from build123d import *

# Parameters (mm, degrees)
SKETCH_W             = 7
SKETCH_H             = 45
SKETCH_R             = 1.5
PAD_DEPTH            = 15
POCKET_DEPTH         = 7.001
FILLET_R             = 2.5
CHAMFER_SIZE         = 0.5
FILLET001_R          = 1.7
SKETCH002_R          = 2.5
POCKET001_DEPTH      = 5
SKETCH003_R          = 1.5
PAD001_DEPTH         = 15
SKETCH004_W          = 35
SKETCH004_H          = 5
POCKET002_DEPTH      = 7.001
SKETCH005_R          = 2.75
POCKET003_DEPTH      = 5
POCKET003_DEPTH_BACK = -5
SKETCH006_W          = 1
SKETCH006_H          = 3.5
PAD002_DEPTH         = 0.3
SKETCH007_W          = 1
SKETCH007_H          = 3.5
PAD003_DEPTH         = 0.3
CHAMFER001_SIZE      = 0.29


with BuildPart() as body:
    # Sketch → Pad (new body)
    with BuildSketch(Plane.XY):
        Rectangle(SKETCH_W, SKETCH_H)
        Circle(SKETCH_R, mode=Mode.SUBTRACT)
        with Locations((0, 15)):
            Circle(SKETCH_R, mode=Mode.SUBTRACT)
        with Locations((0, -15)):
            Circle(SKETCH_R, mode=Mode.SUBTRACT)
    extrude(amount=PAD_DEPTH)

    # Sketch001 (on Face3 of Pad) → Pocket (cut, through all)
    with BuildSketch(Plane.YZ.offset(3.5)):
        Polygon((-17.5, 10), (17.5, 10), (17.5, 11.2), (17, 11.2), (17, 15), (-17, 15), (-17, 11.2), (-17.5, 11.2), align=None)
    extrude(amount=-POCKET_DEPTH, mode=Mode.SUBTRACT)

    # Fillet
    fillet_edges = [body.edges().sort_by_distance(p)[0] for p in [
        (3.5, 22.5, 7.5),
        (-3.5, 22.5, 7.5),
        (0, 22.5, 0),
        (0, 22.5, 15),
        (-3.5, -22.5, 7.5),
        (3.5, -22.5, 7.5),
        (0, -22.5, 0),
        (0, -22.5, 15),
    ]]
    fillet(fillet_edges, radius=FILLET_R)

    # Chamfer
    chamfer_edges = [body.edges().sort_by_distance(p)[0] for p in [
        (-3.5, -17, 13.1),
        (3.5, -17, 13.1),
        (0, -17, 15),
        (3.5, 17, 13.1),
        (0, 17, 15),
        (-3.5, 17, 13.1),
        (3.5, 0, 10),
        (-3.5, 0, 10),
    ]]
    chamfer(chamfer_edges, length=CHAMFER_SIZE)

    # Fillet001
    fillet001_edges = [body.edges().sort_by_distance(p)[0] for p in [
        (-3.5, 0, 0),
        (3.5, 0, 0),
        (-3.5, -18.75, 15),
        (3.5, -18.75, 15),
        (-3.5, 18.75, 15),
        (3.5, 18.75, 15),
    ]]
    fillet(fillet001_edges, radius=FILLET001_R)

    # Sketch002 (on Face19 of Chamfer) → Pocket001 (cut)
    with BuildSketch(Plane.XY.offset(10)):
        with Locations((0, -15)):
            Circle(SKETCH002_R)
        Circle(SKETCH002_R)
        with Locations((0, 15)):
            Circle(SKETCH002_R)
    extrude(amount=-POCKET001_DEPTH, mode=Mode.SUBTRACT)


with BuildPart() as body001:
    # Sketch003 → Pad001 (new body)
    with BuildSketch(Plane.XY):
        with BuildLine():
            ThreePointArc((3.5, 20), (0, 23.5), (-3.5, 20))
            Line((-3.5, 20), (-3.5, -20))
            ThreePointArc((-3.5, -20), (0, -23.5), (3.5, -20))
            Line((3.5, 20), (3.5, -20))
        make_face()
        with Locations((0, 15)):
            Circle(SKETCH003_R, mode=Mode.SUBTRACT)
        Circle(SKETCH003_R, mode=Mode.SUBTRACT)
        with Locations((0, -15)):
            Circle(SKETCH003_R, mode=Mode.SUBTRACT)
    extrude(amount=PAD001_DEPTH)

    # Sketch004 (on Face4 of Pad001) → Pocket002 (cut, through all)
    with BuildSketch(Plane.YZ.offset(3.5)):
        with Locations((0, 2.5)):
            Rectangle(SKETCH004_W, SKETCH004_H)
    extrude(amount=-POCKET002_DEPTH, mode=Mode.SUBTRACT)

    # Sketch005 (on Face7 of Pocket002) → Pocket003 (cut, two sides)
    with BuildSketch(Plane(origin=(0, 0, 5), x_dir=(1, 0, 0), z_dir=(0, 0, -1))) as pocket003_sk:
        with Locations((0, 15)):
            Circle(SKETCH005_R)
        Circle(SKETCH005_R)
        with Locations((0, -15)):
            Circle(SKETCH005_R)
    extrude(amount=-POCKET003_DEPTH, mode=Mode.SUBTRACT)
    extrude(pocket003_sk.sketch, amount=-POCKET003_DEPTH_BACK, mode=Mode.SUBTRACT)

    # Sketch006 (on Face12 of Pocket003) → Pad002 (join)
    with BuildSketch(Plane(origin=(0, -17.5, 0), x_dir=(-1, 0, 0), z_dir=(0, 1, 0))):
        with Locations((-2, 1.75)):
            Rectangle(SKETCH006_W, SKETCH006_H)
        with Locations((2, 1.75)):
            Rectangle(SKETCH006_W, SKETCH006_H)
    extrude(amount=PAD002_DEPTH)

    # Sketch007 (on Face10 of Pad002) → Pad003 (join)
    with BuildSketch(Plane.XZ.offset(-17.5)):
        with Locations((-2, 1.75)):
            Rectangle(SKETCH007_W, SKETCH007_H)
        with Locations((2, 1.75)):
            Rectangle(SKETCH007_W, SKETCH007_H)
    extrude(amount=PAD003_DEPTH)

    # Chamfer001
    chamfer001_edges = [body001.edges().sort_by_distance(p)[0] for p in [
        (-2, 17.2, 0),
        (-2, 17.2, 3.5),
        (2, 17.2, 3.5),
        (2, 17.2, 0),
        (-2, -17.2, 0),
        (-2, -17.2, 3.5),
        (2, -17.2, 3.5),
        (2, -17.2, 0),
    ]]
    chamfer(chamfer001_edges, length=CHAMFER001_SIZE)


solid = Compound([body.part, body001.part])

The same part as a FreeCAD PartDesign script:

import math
import FreeCAD as App
import Part
import Sketcher
from FreeCAD import Vector
Q = App.Units.Quantity


def edges_at(feature, points):
    """Names of the edges that pass closest to the given points."""
    edges = feature.Shape.Edges
    near = lambda p: min(range(len(edges)), key=lambda i: edges[i].distToShape(Part.Vertex(*p))[0])
    return sorted({f"Edge{near(p) + 1}" for p in points})


def add_polygon(sketch, points):
    """Adds a closed chain of lines whose ends are joined by coincident constraints."""
    first, n = sketch.GeometryCount, len(points)
    for a, b in zip(points, points[1:] + points[:1]):
        sketch.addGeometry(Part.LineSegment(App.Vector(*a, 0), App.Vector(*b, 0)), False)
    for i in range(n):
        sketch.addConstraint(Sketcher.Constraint("Coincident", first + i, 2, first + (i + 1) % n, 1))

doc = App.newDocument("Part")
body = doc.addObject("PartDesign::Body", "Body")

sketch1 = body.newObject("Sketcher::SketchObject", "Sketch")
sketch1.AttachmentSupport = (doc.getObject("XY_Plane"), [""])
sketch1.MapMode = "FlatFace"
add_polygon(sketch1, [(-3.5, 22.5), (-3.5, -22.5), (3.5, -22.5), (3.5, 22.5)])
sketch1.addGeometry(Part.Circle(Vector(0, -15, 0), Vector(0, 0, 1), 1.5), False)
sketch1.addGeometry(Part.Circle(Vector(0, 0, 0), Vector(0, 0, 1), 1.5), False)
sketch1.addGeometry(Part.Circle(Vector(0, 15, 0), Vector(0, 0, 1), 1.5), False)
sketch1.addConstraint(Sketcher.Constraint("Vertical", 0))
sketch1.addConstraint(Sketcher.Constraint("Horizontal", 1))
sketch1.addConstraint(Sketcher.Constraint("Vertical", 2))
sketch1.addConstraint(Sketcher.Constraint("Horizontal", 3))
sketch1.addConstraint(Sketcher.Constraint("Coincident", 5, 3, -1, 1))
sketch1.addConstraint(Sketcher.Constraint("Equal", 4, 5))
sketch1.addConstraint(Sketcher.Constraint("Equal", 5, 6))
sketch1.addConstraint(Sketcher.Constraint("Symmetric", 4, 3, 6, 3, -1, 1))
sketch1.addConstraint(Sketcher.Constraint("Symmetric", 0, 2, 2, 2, -1, 1))
sketch1.addConstraint(Sketcher.Constraint("PointOnObject", 4, 3, -2))
sketch1.addConstraint(Sketcher.Constraint("Diameter", 4, Q("3 mm")))
sketch1.addConstraint(Sketcher.Constraint("DistanceX", 1, 1, 1, 2, Q("7 mm")))
sketch1.addConstraint(Sketcher.Constraint("DistanceY", 0, 2, 0, 1, Q("45 mm")))
sketch1.addConstraint(Sketcher.Constraint("DistanceY", 4, 3, -1, 1, Q("15 mm")))
pad1 = body.newObject("PartDesign::Pad", "Pad")
pad1.Profile = sketch1
pad1.Length = 15

sketch2 = body.newObject("Sketcher::SketchObject", "Sketch001")
sketch2.AttachmentSupport = (doc.getObject("YZ_Plane"), [""])
sketch2.MapMode = "FlatFace"
sketch2.AttachmentOffset = App.Placement(Vector(0, 0, 3.5), App.Rotation())
add_polygon(sketch2, [(-17.5, 10), (17.5, 10), (17.5, 11.2), (17, 11.2), (17, 15), (-17, 15), (-17, 11.2), (-17.5, 11.2)])
sketch2.addConstraint(Sketcher.Constraint("Horizontal", 0))
sketch2.addConstraint(Sketcher.Constraint("Vertical", 1))
sketch2.addConstraint(Sketcher.Constraint("Horizontal", 2))
sketch2.addConstraint(Sketcher.Constraint("Vertical", 3))
sketch2.addConstraint(Sketcher.Constraint("Horizontal", 4))
sketch2.addConstraint(Sketcher.Constraint("Vertical", 5))
sketch2.addConstraint(Sketcher.Constraint("Horizontal", 6))
sketch2.addConstraint(Sketcher.Constraint("Vertical", 7))
sketch2.addConstraint(Sketcher.Constraint("Symmetric", 2, 2, 5, 2, -2))
sketch2.addConstraint(Sketcher.Constraint("Equal", 2, 6))
sketch2.addConstraint(Sketcher.Constraint("DistanceX", 0, 1, 0, 2, Q("35 mm")))
sketch2.addConstraint(Sketcher.Constraint("DistanceX", 4, 2, 4, 1, Q("34 mm")))
sketch2.addConstraint(Sketcher.Constraint("DistanceY", 1, 1, 1, 2, Q("1.2 mm")))
sketch2.addConstraint(Sketcher.Constraint("DistanceY", 3, 1, 3, 2, Q("3.8 mm")))
sketch2.addConstraint(Sketcher.Constraint("DistanceY", -1, 1, 0, 2, Q("10 mm")))
pocket1 = body.newObject("PartDesign::Pocket", "Pocket")
pocket1.Profile = sketch2
pocket1.Type = "ThroughAll"
doc.recompute()

fillet = body.newObject("PartDesign::Fillet", "Fillet")
fillet.Base = (pocket1, edges_at(pocket1, [
    (3.5, 22.5, 7.5),
    (-3.5, 22.5, 7.5),
    (0, 22.5, 0),
    (0, 22.5, 15),
    (-3.5, -22.5, 7.5),
    (3.5, -22.5, 7.5),
    (0, -22.5, 0),
    (0, -22.5, 15),
]))
fillet.Radius = 2.5
doc.recompute()

chamfer = body.newObject("PartDesign::Chamfer", "Chamfer")
chamfer.Base = (fillet, edges_at(fillet, [
    (-3.5, -17, 13.1),
    (3.5, -17, 13.1),
    (0, -17, 15),
    (3.5, 17, 13.1),
    (0, 17, 15),
    (-3.5, 17, 13.1),
    (3.5, 0, 10),
    (-3.5, 0, 10),
]))
chamfer.Size = 0.5
doc.recompute()

fillet2 = body.newObject("PartDesign::Fillet", "Fillet001")
fillet2.Base = (chamfer, edges_at(chamfer, [
    (-3.5, 0, 0),
    (3.5, 0, 0),
    (-3.5, -18.75, 15),
    (3.5, -18.75, 15),
    (-3.5, 18.75, 15),
    (3.5, 18.75, 15),
]))
fillet2.Radius = 1.7

sketch3 = body.newObject("Sketcher::SketchObject", "Sketch002")
sketch3.AttachmentSupport = (doc.getObject("XY_Plane"), [""])
sketch3.MapMode = "FlatFace"
sketch3.AttachmentOffset = App.Placement(Vector(0, 0, 10), App.Rotation())
sketch3.addGeometry(Part.Circle(Vector(0, -15, 0), Vector(0, 0, 1), 2.5), False)
sketch3.addGeometry(Part.Circle(Vector(0, 0, 0), Vector(0, 0, 1), 2.5), False)
sketch3.addGeometry(Part.Circle(Vector(0, 15, 0), Vector(0, 0, 1), 2.5), False)
sketch3.addConstraint(Sketcher.Constraint("Coincident", 1, 3, -1, 1))
sketch3.addConstraint(Sketcher.Constraint("Equal", 0, 1))
sketch3.addConstraint(Sketcher.Constraint("Equal", 1, 2))
sketch3.addConstraint(Sketcher.Constraint("Symmetric", 0, 3, 2, 3, -1, 1))
sketch3.addConstraint(Sketcher.Constraint("PointOnObject", 0, 3, -2))
sketch3.addConstraint(Sketcher.Constraint("Diameter", 0, Q("5 mm")))
sketch3.addConstraint(Sketcher.Constraint("DistanceY", 0, 3, -1, 1, Q("15 mm")))
pocket2 = body.newObject("PartDesign::Pocket", "Pocket001")
pocket2.Profile = sketch3
pocket2.Length = 5
body2 = doc.addObject("PartDesign::Body", "Body001")

sketch4 = body2.newObject("Sketcher::SketchObject", "Sketch003")
sketch4.AttachmentSupport = (doc.getObject("XY_Plane001"), [""])
sketch4.MapMode = "FlatFace"
sketch4.addGeometry(Part.ArcOfCircle(Part.Circle(Vector(0, 20, 0), Vector(0, 0, 1), 3.5), math.radians(0), math.radians(180)), False)
sketch4.addGeometry(Part.LineSegment(Vector(-3.5, 20, 0), Vector(-3.5, -20, 0)), False)
sketch4.addGeometry(Part.ArcOfCircle(Part.Circle(Vector(0, -20, 0), Vector(0, 0, 1), 3.5), math.radians(180), math.radians(360)), False)
sketch4.addGeometry(Part.LineSegment(Vector(3.5, -20, 0), Vector(3.5, 20, 0)), False)
sketch4.addGeometry(Part.Circle(Vector(0, -15, 0), Vector(0, 0, 1), 1.5), False)
sketch4.addGeometry(Part.Circle(Vector(0, 0, 0), Vector(0, 0, 1), 1.5), False)
sketch4.addGeometry(Part.Circle(Vector(0, 15, 0), Vector(0, 0, 1), 1.5), False)
sketch4.addConstraint(Sketcher.Constraint("Tangent", 0, 2, 1, 1))
sketch4.addConstraint(Sketcher.Constraint("Tangent", 1, 2, 2, 1))
sketch4.addConstraint(Sketcher.Constraint("Tangent", 2, 2, 3, 1))
sketch4.addConstraint(Sketcher.Constraint("Tangent", 3, 2, 0, 1))
sketch4.addConstraint(Sketcher.Constraint("Vertical", 1))
sketch4.addConstraint(Sketcher.Constraint("Vertical", 3))
sketch4.addConstraint(Sketcher.Constraint("Coincident", 5, 3, -1, 1))
sketch4.addConstraint(Sketcher.Constraint("Equal", 4, 5))
sketch4.addConstraint(Sketcher.Constraint("Equal", 5, 6))
sketch4.addConstraint(Sketcher.Constraint("Symmetric", 0, 3, 2, 3, -1, 1))
sketch4.addConstraint(Sketcher.Constraint("Symmetric", 4, 3, 6, 3, -1, 1))
sketch4.addConstraint(Sketcher.Constraint("PointOnObject", 4, 3, -2))
sketch4.addConstraint(Sketcher.Constraint("Diameter", 4, Q("3 mm")))
sketch4.addConstraint(Sketcher.Constraint("Radius", 0, Q("3.5 mm")))
sketch4.addConstraint(Sketcher.Constraint("DistanceY", 1, 2, 1, 1, Q("40 mm")))
sketch4.addConstraint(Sketcher.Constraint("DistanceY", 4, 3, -1, 1, Q("15 mm")))
pad2 = body2.newObject("PartDesign::Pad", "Pad001")
pad2.Profile = sketch4
pad2.Length = 15

sketch5 = body2.newObject("Sketcher::SketchObject", "Sketch004")
sketch5.AttachmentSupport = (doc.getObject("YZ_Plane001"), [""])
sketch5.MapMode = "FlatFace"
sketch5.AttachmentOffset = App.Placement(Vector(0, 0, 3.5), App.Rotation())
add_polygon(sketch5, [(-17.5, 5), (-17.5, 0), (17.5, 0), (17.5, 5)])
sketch5.addConstraint(Sketcher.Constraint("Vertical", 0))
sketch5.addConstraint(Sketcher.Constraint("Horizontal", 1))
sketch5.addConstraint(Sketcher.Constraint("Vertical", 2))
sketch5.addConstraint(Sketcher.Constraint("Horizontal", 3))
sketch5.addConstraint(Sketcher.Constraint("Symmetric", 0, 2, 1, 2, -1, 1))
sketch5.addConstraint(Sketcher.Constraint("DistanceX", 1, 1, 1, 2, Q("35 mm")))
sketch5.addConstraint(Sketcher.Constraint("DistanceY", 0, 2, 0, 1, Q("5 mm")))
pocket3 = body2.newObject("PartDesign::Pocket", "Pocket002")
pocket3.Profile = sketch5
pocket3.Type = "ThroughAll"

sketch6 = body2.newObject("Sketcher::SketchObject", "Sketch005")
sketch6.AttachmentSupport = (doc.getObject("XY_Plane001"), [""])
sketch6.MapMode = "FlatFace"
sketch6.AttachmentOffset = App.Placement(Vector(0, 0, 5), App.Rotation())
sketch6.addGeometry(Part.Circle(Vector(0, -15, 0), Vector(0, 0, 1), 2.75), False)
sketch6.addGeometry(Part.Circle(Vector(0, 0, 0), Vector(0, 0, 1), 2.75), False)
sketch6.addGeometry(Part.Circle(Vector(0, 15, 0), Vector(0, 0, 1), 2.75), False)
sketch6.addConstraint(Sketcher.Constraint("Coincident", 1, 3, -1, 1))
sketch6.addConstraint(Sketcher.Constraint("Equal", 0, 1))
sketch6.addConstraint(Sketcher.Constraint("Equal", 1, 2))
sketch6.addConstraint(Sketcher.Constraint("Symmetric", 0, 3, 2, 3, -1, 1))
sketch6.addConstraint(Sketcher.Constraint("PointOnObject", 0, 3, -2))
sketch6.addConstraint(Sketcher.Constraint("Diameter", 0, Q("5.5 mm")))
sketch6.addConstraint(Sketcher.Constraint("DistanceY", 0, 3, -1, 1, Q("15 mm")))
pocket4 = body2.newObject("PartDesign::Pocket", "Pocket003")
pocket4.Profile = sketch6
pocket4.Type = "TwoLengths"
pocket4.Length = 5
pocket4.Length2 = 5
pocket4.Reversed = True

sketch7 = body2.newObject("Sketcher::SketchObject", "Sketch006")
sketch7.AttachmentSupport = (doc.getObject("XZ_Plane001"), [""])
sketch7.MapMode = "FlatFace"
sketch7.AttachmentOffset = App.Placement(Vector(0, 0, 17.5), App.Rotation())
add_polygon(sketch7, [(2.5, 3.5), (2.5, 0), (1.5, 0), (1.5, 3.5)])
add_polygon(sketch7, [(-1.5, 3.5), (-1.5, 0), (-2.5, 0), (-2.5, 3.5)])
sketch7.addConstraint(Sketcher.Constraint("Vertical", 0))
sketch7.addConstraint(Sketcher.Constraint("Horizontal", 1))
sketch7.addConstraint(Sketcher.Constraint("Vertical", 2))
sketch7.addConstraint(Sketcher.Constraint("Horizontal", 3))
sketch7.addConstraint(Sketcher.Constraint("Vertical", 4))
sketch7.addConstraint(Sketcher.Constraint("Horizontal", 5))
sketch7.addConstraint(Sketcher.Constraint("Vertical", 6))
sketch7.addConstraint(Sketcher.Constraint("Horizontal", 7))
sketch7.addConstraint(Sketcher.Constraint("Symmetric", 1, 2, 4, 2, -1, 1))
sketch7.addConstraint(Sketcher.Constraint("Symmetric", 0, 2, 5, 2, -2))
sketch7.addConstraint(Sketcher.Constraint("Horizontal", 3, 2, 6, 2))
sketch7.addConstraint(Sketcher.Constraint("DistanceX", 1, 2, 1, 1, Q("1 mm")))
sketch7.addConstraint(Sketcher.Constraint("DistanceY", 0, 2, 0, 1, Q("3.5 mm")))
sketch7.addConstraint(Sketcher.Constraint("DistanceX", 4, 2, 1, 2, Q("3 mm")))
pad3 = body2.newObject("PartDesign::Pad", "Pad002")
pad3.Profile = sketch7
pad3.Length = 0.3
pad3.Reversed = True

sketch8 = body2.newObject("Sketcher::SketchObject", "Sketch007")
sketch8.AttachmentSupport = (doc.getObject("XZ_Plane001"), [""])
sketch8.MapMode = "FlatFace"
sketch8.AttachmentOffset = App.Placement(Vector(0, 0, -17.5), App.Rotation())
add_polygon(sketch8, [(-2.5, 3.5), (-2.5, 0), (-1.5, 0), (-1.5, 3.5)])
add_polygon(sketch8, [(1.5, 3.5), (1.5, 0), (2.5, 0), (2.5, 3.5)])
sketch8.addConstraint(Sketcher.Constraint("Vertical", 0))
sketch8.addConstraint(Sketcher.Constraint("Horizontal", 1))
sketch8.addConstraint(Sketcher.Constraint("Vertical", 2))
sketch8.addConstraint(Sketcher.Constraint("Horizontal", 3))
sketch8.addConstraint(Sketcher.Constraint("Vertical", 4))
sketch8.addConstraint(Sketcher.Constraint("Horizontal", 5))
sketch8.addConstraint(Sketcher.Constraint("Vertical", 6))
sketch8.addConstraint(Sketcher.Constraint("Horizontal", 7))
sketch8.addConstraint(Sketcher.Constraint("Symmetric", 1, 2, 4, 2, -1, 1))
sketch8.addConstraint(Sketcher.Constraint("Symmetric", 0, 2, 5, 2, -2))
sketch8.addConstraint(Sketcher.Constraint("Horizontal", 3, 2, 6, 2))
sketch8.addConstraint(Sketcher.Constraint("DistanceX", 1, 1, 1, 2, Q("1 mm")))
sketch8.addConstraint(Sketcher.Constraint("DistanceY", 0, 2, 0, 1, Q("3.5 mm")))
sketch8.addConstraint(Sketcher.Constraint("DistanceX", 1, 2, 4, 2, Q("3 mm")))
pad4 = body2.newObject("PartDesign::Pad", "Pad003")
pad4.Profile = sketch8
pad4.Length = 0.3
doc.recompute()

chamfer2 = body2.newObject("PartDesign::Chamfer", "Chamfer001")
chamfer2.Base = (pad4, edges_at(pad4, [
    (-2, 17.2, 0),
    (-2, 17.2, 3.5),
    (2, 17.2, 3.5),
    (2, 17.2, 0),
    (-2, -17.2, 0),
    (-2, -17.2, 3.5),
    (2, -17.2, 3.5),
    (2, -17.2, 0),
]))
chamfer2.Size = 0.29

doc.recompute()
